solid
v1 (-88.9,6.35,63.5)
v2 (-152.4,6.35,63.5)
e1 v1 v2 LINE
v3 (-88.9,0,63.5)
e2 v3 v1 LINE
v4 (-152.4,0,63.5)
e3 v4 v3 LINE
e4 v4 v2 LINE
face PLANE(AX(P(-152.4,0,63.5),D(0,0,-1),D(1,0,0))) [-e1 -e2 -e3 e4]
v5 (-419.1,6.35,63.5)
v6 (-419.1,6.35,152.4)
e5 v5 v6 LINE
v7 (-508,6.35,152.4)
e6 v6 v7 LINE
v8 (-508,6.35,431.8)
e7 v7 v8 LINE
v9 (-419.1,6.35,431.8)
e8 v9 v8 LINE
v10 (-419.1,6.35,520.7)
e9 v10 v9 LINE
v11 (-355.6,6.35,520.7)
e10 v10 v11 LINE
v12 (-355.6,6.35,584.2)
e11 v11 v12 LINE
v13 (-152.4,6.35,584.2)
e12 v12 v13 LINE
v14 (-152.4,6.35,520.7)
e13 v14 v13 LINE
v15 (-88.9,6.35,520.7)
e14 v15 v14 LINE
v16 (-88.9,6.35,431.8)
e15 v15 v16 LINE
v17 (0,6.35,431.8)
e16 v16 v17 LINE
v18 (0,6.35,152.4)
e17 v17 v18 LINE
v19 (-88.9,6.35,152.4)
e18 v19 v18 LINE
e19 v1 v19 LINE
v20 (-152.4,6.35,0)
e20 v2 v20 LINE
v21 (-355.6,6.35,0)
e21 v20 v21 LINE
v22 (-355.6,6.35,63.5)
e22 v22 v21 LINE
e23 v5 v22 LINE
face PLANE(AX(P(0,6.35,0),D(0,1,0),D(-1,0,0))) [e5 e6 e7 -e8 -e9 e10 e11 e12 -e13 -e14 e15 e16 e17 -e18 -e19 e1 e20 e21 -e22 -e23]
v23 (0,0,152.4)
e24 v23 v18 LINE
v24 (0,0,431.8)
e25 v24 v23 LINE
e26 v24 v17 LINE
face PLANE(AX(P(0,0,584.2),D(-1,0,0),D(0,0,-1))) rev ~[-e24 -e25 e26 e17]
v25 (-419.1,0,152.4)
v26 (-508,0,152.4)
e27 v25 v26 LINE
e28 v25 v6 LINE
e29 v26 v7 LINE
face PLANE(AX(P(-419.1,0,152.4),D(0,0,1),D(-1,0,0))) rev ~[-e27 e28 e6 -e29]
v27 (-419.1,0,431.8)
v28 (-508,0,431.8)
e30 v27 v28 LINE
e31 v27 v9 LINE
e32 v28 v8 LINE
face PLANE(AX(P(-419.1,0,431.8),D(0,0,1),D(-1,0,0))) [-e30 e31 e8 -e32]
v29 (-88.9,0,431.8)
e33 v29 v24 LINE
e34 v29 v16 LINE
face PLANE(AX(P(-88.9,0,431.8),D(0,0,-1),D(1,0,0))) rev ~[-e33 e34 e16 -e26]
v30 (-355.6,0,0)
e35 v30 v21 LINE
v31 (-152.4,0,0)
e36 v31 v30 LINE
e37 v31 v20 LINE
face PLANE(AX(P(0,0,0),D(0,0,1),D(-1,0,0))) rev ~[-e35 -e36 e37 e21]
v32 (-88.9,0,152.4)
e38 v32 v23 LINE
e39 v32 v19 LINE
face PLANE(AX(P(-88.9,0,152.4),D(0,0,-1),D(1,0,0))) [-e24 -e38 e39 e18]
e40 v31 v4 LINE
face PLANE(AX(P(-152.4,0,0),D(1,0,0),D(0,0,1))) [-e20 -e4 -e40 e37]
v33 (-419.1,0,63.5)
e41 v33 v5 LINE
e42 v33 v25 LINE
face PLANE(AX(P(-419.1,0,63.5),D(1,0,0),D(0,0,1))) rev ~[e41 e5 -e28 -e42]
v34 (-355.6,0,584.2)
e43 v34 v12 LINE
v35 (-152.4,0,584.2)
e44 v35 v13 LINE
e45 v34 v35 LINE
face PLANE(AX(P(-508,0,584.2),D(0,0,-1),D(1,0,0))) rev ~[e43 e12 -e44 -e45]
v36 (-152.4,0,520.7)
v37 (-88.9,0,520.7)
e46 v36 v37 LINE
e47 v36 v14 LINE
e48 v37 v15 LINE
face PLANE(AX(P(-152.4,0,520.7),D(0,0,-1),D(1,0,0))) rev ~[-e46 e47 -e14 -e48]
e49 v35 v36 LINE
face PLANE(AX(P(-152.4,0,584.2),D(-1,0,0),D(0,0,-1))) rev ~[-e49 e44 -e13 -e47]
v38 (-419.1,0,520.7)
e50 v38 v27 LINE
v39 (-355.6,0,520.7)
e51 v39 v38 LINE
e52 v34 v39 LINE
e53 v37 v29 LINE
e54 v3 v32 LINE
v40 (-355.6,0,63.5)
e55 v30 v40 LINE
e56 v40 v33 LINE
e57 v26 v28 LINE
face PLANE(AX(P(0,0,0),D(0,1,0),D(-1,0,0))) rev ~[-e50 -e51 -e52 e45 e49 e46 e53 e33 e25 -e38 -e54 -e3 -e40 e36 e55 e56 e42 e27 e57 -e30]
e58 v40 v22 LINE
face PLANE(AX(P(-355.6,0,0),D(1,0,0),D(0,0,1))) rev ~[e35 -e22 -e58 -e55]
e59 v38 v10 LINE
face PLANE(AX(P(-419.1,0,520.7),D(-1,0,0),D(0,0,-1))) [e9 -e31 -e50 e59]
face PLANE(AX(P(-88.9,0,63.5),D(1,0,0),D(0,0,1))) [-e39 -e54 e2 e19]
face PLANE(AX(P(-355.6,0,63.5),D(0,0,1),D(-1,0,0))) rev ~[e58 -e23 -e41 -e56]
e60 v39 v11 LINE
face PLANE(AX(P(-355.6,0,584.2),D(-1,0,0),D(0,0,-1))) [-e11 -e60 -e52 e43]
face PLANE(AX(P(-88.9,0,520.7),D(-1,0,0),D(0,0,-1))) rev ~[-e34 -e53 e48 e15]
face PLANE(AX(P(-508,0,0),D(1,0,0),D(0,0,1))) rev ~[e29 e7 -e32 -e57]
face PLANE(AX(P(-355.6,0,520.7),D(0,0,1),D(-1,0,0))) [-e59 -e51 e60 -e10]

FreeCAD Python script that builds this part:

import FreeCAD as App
import Part
import Sketcher
from FreeCAD import Vector
Q = App.Units.Quantity


def add_polygon(sketch, points):
    """Adds a closed chain of lines whose ends are joined by coincident constraints."""
    first, n = sketch.GeometryCount, len(points)
    for a, b in zip(points, points[1:] + points[:1]):
        sketch.addGeometry(Part.LineSegment(App.Vector(*a, 0), App.Vector(*b, 0)), False)
    for i in range(n):
        sketch.addConstraint(Sketcher.Constraint("Coincident", first + i, 2, first + (i + 1) % n, 1))

doc = App.newDocument("Part")
body = doc.addObject("PartDesign::Body", "Body")

# Sketch on XZ plane
sketch1 = doc.addObject("Sketcher::SketchObject", "Sketch")
body.addObject(sketch1)
sketch1.AttachmentSupport = (doc.XZ_Plane, [""])
sketch1.MapMode = "FlatFace"
add_polygon(sketch1, [(0, 584), (0, 0), (-508, 0), (-508, 584)])  # lines 0-3
sketch1.addConstraint([
    Sketcher.Constraint("Vertical", 0),
    Sketcher.Constraint("Horizontal", 1),
    Sketcher.Constraint("Vertical", 2),
    Sketcher.Constraint("Horizontal", 3),
    Sketcher.Constraint("Coincident", 0, 2, -1, 1),
    Sketcher.Constraint("DistanceX", 1, 2, 1, 1, Q("20 in")),
    Sketcher.Constraint("DistanceY", 0, 2, 0, 1, Q("23 in")),
])
pad1 = doc.addObject("PartDesign::Pad", "Pad")
body.addObject(pad1)
pad1.Profile = sketch1
pad1.Length = Q("0.25 in")
pad1.Reversed = True

# Sketch on XZ plane
sketch2 = doc.addObject("Sketcher::SketchObject", "Sketch001")
body.addObject(sketch2)
sketch2.AttachmentSupport = (doc.XZ_Plane, [""])
sketch2.MapMode = "FlatFace"
add_polygon(sketch2, [(-356, 584), (-508, 584), (-508, 521), (-356, 521)])  # lines 0-3
add_polygon(sketch2, [(0, 521), (0, 584), (-152, 584), (-152, 521)])  # lines 4-7
add_polygon(sketch2, [(-508, 64), (-508, 0), (-356, 0), (-356, 64)])  # lines 8-11
add_polygon(sketch2, [(-152, 0), (0, 0), (0, 64), (-152, 64)])  # lines 12-15
sketch2.addConstraint([
    Sketcher.Constraint("Horizontal", 0),
    Sketcher.Constraint("Vertical", 1),
    Sketcher.Constraint("Horizontal", 2),
    Sketcher.Constraint("Vertical", 3),
    Sketcher.Constraint("Vertical", 4),
    Sketcher.Constraint("Horizontal", 5),
    Sketcher.Constraint("Vertical", 6),
    Sketcher.Constraint("Horizontal", 7),
    Sketcher.Constraint("Vertical", 8),
    Sketcher.Constraint("Horizontal", 9),
    Sketcher.Constraint("Vertical", 10),
    Sketcher.Constraint("Horizontal", 11),
    Sketcher.Constraint("Horizontal", 12),
    Sketcher.Constraint("Vertical", 13),
    Sketcher.Constraint("Horizontal", 14),
    Sketcher.Constraint("Vertical", 15),
    Sketcher.Constraint("Coincident", 12, 2, -1, 1),
    Sketcher.Constraint("PointOnObject", 4, 2, -2),
    Sketcher.Constraint("PointOnObject", 8, 2, -1),
    Sketcher.Constraint("Horizontal", 3, 2, 4, 2),
    Sketcher.Constraint("Horizontal", 2, 2, 6, 2),
    Sketcher.Constraint("Horizontal", 11, 2, 13, 2),
    Sketcher.Constraint("Vertical", 1, 2, 8, 2),
    Sketcher.Constraint("Vertical", 3, 2, 9, 2),
    Sketcher.Constraint("Vertical", 6, 2, 14, 2),
    Sketcher.Constraint("Equal", 2, 5),
    Sketcher.Constraint("Equal", 6, 8),
    Sketcher.Constraint("DistanceX", 0, 2, 0, 1, Q("6 in")),
    Sketcher.Constraint("DistanceY", 1, 2, 1, 1, Q("2.5 in")),
    Sketcher.Constraint("DistanceX", 0, 2, -1, 1, Q("20 in")),
    Sketcher.Constraint("DistanceY", -1, 1, 0, 2, Q("23 in")),
])
pocket1 = doc.addObject("PartDesign::Pocket", "Pocket")
body.addObject(pocket1)
pocket1.Profile = sketch2
pocket1.Type = "ThroughAll"

# Sketch on XZ plane
sketch3 = doc.addObject("Sketcher::SketchObject", "Sketch002")
body.addObject(sketch3)
sketch3.AttachmentSupport = (doc.XZ_Plane, [""])
sketch3.MapMode = "FlatFace"
add_polygon(sketch3, [(-89, 152), (-89, 64), (0, 64), (0, 152)])  # lines 0-3
add_polygon(sketch3, [(-89, 432), (0, 432), (0, 521), (-89, 521)])  # lines 4-7
add_polygon(sketch3, [(-419, 521), (-508, 521), (-508, 432), (-419, 432)])  # lines 8-11
add_polygon(sketch3, [(-508, 152), (-508, 64), (-419, 64), (-419, 152)])  # lines 12-15
sketch3.addConstraint([
    Sketcher.Constraint("Vertical", 0),
    Sketcher.Constraint("Horizontal", 1),
    Sketcher.Constraint("Vertical", 2),
    Sketcher.Constraint("Horizontal", 3),
    Sketcher.Constraint("Horizontal", 4),
    Sketcher.Constraint("Vertical", 5),
    Sketcher.Constraint("Horizontal", 6),
    Sketcher.Constraint("Vertical", 7),
    Sketcher.Constraint("Horizontal", 8),
    Sketcher.Constraint("Vertical", 9),
    Sketcher.Constraint("Horizontal", 10),
    Sketcher.Constraint("Vertical", 11),
    Sketcher.Constraint("Vertical", 12),
    Sketcher.Constraint("Horizontal", 13),
    Sketcher.Constraint("Vertical", 14),
    Sketcher.Constraint("Horizontal", 15),
    Sketcher.Constraint("PointOnObject", 1, 2, -2),
    Sketcher.Constraint("PointOnObject", 4, 2, -2),
    Sketcher.Constraint("Horizontal", 6, 2, 8, 2),
    Sketcher.Constraint("Horizontal", 7, 2, 9, 2),
    Sketcher.Constraint("Horizontal", 1, 2, 12, 2),
    Sketcher.Constraint("Horizontal", 3, 2, 14, 2),
    Sketcher.Constraint("Vertical", 3, 2, 6, 2),
    Sketcher.Constraint("Vertical", 9, 2, 12, 2),
    Sketcher.Constraint("Vertical", 11, 2, 13, 2),
    Sketcher.Constraint("Equal", 6, 8),
    Sketcher.Constraint("Equal", 15, 0),
    Sketcher.Constraint("Equal", 2, 5),
    Sketcher.Constraint("DistanceX", 1, 1, 1, 2, Q("3.5 in")),
    Sketcher.Constraint("DistanceY", -1, 1, 2, 2, Q("6 in")),
    Sketcher.Constraint("DistanceY", -1, 1, 4, 2, Q("17 in")),
    Sketcher.Constraint("DistanceX", 8, 2, -1, 1, Q("20 in")),
])
pocket2 = doc.addObject("PartDesign::Pocket", "Pocket001")
body.addObject(pocket2)
pocket2.Profile = sketch3
pocket2.Length = Q("0.25 in")

doc.recompute()
